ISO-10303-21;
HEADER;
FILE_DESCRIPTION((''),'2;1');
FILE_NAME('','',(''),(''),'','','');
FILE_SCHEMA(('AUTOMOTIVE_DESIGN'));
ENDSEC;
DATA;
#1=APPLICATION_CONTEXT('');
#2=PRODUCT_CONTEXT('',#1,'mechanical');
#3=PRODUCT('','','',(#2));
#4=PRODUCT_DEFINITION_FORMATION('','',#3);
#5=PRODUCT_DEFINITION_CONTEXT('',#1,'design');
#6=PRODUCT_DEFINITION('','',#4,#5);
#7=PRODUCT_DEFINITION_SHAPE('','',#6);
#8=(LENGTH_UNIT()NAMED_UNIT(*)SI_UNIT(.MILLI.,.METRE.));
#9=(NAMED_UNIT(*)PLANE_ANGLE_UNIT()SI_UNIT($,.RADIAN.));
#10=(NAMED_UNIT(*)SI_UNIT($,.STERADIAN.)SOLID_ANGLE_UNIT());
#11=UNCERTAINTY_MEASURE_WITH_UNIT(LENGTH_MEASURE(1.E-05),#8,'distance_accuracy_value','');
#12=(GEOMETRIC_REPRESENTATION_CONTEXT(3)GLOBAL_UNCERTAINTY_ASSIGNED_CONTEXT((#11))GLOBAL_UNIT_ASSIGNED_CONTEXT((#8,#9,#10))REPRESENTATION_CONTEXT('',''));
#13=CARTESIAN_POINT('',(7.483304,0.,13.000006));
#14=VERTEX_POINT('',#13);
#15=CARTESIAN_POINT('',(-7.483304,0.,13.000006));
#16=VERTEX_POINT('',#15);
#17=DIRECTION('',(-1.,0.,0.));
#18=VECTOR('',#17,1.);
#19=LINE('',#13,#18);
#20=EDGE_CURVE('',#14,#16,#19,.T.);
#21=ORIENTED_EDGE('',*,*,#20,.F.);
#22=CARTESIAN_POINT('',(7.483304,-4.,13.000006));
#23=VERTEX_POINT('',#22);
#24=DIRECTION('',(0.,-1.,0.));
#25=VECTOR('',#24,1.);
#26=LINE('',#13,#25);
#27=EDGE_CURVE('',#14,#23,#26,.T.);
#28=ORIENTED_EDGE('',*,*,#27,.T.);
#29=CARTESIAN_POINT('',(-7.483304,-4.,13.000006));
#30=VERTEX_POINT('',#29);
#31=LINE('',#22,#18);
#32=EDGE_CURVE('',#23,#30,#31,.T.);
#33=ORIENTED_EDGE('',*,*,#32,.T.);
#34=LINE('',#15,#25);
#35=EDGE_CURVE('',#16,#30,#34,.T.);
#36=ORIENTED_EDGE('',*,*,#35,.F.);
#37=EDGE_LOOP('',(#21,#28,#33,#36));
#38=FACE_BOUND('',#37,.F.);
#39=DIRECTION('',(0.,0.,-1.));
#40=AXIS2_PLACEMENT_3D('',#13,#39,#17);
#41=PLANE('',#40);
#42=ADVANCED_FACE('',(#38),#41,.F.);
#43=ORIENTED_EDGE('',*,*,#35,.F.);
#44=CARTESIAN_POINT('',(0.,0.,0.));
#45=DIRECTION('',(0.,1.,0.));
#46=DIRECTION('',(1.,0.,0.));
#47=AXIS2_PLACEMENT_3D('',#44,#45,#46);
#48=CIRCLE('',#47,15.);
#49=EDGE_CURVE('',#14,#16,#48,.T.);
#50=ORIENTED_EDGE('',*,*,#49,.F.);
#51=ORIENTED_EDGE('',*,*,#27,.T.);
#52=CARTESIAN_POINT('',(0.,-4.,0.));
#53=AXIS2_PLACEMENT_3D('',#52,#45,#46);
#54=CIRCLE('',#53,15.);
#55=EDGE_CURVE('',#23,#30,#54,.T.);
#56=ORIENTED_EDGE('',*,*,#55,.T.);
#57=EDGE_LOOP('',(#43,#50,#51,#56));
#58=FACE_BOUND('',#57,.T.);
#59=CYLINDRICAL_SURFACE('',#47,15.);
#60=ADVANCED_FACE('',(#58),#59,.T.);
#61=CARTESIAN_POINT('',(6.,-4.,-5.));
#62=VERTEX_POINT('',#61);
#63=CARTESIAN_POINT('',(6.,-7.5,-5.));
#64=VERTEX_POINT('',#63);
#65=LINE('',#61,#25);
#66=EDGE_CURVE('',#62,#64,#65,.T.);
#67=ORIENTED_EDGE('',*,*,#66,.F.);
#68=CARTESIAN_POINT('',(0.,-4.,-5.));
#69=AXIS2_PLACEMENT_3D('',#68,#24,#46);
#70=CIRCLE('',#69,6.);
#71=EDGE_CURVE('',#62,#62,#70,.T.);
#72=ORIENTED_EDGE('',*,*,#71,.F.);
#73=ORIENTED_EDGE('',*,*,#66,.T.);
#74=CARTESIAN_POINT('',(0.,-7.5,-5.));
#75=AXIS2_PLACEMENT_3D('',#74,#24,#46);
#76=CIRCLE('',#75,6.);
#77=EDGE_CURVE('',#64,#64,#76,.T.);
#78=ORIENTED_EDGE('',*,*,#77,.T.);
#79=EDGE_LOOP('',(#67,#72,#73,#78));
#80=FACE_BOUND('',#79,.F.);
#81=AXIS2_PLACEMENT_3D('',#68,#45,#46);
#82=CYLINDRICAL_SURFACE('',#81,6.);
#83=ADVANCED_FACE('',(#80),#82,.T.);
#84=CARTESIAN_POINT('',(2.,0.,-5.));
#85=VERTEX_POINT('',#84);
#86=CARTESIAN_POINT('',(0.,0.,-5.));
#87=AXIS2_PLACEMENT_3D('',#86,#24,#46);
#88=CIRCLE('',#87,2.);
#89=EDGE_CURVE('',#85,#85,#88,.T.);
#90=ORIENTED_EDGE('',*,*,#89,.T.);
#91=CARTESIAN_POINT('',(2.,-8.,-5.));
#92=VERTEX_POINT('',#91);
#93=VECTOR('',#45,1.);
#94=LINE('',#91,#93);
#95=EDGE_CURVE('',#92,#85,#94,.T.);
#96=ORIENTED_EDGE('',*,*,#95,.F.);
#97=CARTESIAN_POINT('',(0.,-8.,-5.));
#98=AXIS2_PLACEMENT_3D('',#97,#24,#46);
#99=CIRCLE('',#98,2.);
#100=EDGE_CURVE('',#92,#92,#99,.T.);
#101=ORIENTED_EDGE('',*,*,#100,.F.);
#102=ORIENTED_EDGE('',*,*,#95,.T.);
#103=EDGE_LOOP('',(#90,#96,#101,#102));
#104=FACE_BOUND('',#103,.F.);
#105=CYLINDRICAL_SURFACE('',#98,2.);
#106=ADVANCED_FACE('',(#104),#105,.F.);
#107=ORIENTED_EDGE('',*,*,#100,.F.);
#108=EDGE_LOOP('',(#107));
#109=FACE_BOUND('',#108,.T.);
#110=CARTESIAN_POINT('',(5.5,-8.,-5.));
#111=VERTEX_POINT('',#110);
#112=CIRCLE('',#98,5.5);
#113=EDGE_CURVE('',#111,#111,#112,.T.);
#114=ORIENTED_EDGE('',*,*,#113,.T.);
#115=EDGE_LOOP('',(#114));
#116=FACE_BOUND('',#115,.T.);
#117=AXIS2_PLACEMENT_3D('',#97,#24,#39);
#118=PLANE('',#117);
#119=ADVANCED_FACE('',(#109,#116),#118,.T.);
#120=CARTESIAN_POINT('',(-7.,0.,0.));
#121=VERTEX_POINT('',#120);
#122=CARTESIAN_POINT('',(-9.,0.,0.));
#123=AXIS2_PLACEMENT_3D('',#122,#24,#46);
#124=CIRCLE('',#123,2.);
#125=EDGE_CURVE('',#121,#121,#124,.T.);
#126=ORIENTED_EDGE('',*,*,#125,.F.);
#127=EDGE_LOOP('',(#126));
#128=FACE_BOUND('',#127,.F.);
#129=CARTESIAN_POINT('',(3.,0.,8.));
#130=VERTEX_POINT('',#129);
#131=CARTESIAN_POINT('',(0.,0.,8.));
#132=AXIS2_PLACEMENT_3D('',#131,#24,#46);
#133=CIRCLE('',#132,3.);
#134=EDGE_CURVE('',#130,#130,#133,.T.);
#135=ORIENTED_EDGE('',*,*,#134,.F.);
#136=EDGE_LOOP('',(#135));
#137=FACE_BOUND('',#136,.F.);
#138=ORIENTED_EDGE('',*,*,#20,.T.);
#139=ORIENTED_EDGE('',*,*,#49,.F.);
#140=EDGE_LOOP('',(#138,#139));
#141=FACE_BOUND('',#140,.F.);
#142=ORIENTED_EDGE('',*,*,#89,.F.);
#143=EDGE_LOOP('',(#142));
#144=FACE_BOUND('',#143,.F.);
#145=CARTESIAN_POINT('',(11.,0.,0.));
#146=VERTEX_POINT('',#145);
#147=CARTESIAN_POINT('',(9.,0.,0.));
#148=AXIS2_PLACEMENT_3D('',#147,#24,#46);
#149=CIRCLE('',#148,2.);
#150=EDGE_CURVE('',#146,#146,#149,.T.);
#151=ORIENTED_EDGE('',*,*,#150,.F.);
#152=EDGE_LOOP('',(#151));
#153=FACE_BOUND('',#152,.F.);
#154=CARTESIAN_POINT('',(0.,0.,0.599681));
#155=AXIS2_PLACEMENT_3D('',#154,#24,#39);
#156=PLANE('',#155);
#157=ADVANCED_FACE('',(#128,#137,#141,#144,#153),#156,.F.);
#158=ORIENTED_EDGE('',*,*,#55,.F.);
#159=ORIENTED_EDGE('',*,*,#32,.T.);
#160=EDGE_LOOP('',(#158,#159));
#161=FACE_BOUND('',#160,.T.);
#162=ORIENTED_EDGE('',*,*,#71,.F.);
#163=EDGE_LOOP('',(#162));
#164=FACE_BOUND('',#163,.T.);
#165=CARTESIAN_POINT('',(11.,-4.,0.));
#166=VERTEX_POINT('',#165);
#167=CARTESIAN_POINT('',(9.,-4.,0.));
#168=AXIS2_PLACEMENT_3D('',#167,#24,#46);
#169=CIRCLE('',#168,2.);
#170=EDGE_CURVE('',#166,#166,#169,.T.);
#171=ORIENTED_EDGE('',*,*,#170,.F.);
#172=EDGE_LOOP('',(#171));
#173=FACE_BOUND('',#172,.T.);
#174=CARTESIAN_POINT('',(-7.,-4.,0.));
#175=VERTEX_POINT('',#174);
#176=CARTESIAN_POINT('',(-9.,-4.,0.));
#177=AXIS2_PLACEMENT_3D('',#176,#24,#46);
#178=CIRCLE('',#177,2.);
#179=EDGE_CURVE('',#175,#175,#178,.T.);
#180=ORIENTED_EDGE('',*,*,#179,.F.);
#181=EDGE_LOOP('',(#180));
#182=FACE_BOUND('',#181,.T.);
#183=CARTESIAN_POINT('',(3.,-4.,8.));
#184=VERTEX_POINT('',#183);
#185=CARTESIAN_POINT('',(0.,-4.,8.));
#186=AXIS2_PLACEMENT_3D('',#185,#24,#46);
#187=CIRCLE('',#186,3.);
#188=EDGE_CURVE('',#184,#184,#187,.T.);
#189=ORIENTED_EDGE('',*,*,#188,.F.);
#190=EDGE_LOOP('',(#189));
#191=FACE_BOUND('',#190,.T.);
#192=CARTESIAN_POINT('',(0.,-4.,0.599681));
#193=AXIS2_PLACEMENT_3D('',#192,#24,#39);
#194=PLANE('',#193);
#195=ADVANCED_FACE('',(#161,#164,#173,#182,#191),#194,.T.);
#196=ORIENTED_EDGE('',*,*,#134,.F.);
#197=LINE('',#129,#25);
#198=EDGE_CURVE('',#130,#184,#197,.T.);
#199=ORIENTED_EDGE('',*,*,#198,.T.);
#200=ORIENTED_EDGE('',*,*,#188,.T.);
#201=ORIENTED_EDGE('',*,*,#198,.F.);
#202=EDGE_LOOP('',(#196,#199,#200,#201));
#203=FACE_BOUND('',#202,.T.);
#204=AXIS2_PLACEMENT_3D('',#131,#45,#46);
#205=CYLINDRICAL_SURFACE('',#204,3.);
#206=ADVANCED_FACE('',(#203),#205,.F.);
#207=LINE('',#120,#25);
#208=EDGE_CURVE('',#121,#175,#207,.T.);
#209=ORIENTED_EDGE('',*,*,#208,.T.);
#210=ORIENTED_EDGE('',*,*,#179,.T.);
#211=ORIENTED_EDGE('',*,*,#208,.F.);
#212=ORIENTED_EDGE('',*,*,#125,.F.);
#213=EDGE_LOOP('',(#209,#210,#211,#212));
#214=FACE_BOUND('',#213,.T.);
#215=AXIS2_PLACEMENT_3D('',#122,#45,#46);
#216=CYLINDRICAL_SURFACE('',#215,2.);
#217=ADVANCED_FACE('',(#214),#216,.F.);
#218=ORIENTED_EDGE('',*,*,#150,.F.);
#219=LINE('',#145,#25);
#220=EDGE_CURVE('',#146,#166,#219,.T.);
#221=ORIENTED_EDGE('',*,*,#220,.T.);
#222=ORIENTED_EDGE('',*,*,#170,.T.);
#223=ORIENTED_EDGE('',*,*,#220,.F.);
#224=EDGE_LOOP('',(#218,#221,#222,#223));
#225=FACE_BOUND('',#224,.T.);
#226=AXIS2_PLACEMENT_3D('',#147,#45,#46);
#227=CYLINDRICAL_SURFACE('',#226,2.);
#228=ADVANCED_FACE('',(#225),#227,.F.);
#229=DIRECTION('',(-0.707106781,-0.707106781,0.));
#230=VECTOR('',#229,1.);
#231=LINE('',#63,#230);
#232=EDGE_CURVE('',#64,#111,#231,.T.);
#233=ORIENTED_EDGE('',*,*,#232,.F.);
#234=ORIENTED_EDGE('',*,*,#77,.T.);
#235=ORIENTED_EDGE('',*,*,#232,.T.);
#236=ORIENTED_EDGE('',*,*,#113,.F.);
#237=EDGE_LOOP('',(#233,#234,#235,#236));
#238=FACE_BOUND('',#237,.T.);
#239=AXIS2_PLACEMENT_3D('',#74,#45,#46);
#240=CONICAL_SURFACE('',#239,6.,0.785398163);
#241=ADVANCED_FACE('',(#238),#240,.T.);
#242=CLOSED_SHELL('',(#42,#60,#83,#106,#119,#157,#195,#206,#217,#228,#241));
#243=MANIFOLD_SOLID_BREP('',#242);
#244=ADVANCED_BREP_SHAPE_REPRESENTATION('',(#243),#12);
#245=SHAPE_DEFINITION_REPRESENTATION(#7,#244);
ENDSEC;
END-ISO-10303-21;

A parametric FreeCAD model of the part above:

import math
import FreeCAD as App
import Part
import Sketcher

V = App.Vector


def edges_at(feature, points):
    """Names of the edges that pass closest to the given points."""
    edges = feature.Shape.Edges
    near = lambda p: min(range(len(edges)), key=lambda i: edges[i].distToShape(Part.Vertex(*p))[0])
    return sorted({f"Edge{near(p) + 1}" for p in points})

doc = App.newDocument("Part")
params = doc.addObject("Spreadsheet::Sheet", "Params")
for row, (alias, value) in enumerate([
    ("sketch1_diameter", "4 mm"),
    ("sketch1_diameter2", "6 mm"),
    ("sketch1_radius", "15 mm"),
    ("pad1_length", "4 mm"),
    ("sketch2_diameter", "12 mm"),
    ("pad2_length", "4 mm"),
    ("sketch3_diameter", "4 mm"),
    ("pocket1_length", "17.8884 mm"),
    ("chamfer_size", "0.5 mm"),
], start=1):
    params.set(f"A{row}", alias)
    params.set(f"B{row}", "=" + value)
    params.setAlias(f"B{row}", alias)

body = doc.addObject("PartDesign::Body", "Body")

# Sketch on XZ plane
sketch1 = doc.addObject("Sketcher::SketchObject", "Sketch")
body.addObject(sketch1)
sketch1.AttachmentSupport = (doc.XZ_Plane, [""])
sketch1.MapMode = "FlatFace"
sketch1.addGeometry([
    Part.ArcOfCircle(Part.Circle(V(0, 0, 0), V(0, 0, 1), 14.999993), math.radians(119.926386), math.radians(420.073614)),  # 0
    Part.LineSegment(V(7.4833, 13, 0), V(-7.4833, 13, 0)),  # 1
    Part.Circle(V(-9, 0, 0), V(0, 0, 1), 2),  # 2
    Part.Circle(V(9, 0, 0), V(0, 0, 1), 2),  # 3
    Part.Circle(V(0, 8, 0), V(0, 0, 1), 3),  # 4
], False)
sketch1.addConstraint([
    Sketcher.Constraint("Coincident", 0, 1, 1, 2),
    Sketcher.Constraint("Coincident", 1, 1, 0, 2),
    Sketcher.Constraint("Horizontal", 1),
    Sketcher.Constraint("Coincident", 0, 3, -1, 1),
    Sketcher.Constraint("Equal", 2, 3),
    Sketcher.Constraint("Symmetric", 2, 3, 3, 3, -1, 1),
    Sketcher.Constraint("PointOnObject", 2, 3, -1),
    Sketcher.Constraint("PointOnObject", 4, 3, -2),
    Sketcher.Constraint("Diameter", 2, 4.0),
    Sketcher.Constraint("Diameter", 4, 6.0),
    Sketcher.Constraint("Radius", 0, 15.0),
    Sketcher.Constraint("DistanceX", 2, 3, -1, 1, 9.0),
    Sketcher.Constraint("DistanceY", -1, 1, 4, 3, 8.0),
    Sketcher.Constraint("DistanceY", -1, 1, 0, 1, 13.0),
])
sketch1.setExpression("Constraints[8]", "Params.sketch1_diameter")
sketch1.setExpression("Constraints[9]", "Params.sketch1_diameter2")
sketch1.setExpression("Constraints[10]", "Params.sketch1_radius")
pad1 = doc.addObject("PartDesign::Pad", "Pad")
body.addObject(pad1)
pad1.Profile = sketch1
pad1.setExpression("Length", "Params.pad1_length")

# Sketch on XZ plane
sketch2 = doc.addObject("Sketcher::SketchObject", "Sketch001")
body.addObject(sketch2)
sketch2.AttachmentSupport = (doc.XZ_Plane, [""])
sketch2.MapMode = "FlatFace"
sketch2.AttachmentOffset = App.Placement(V(0, 0, 4), App.Rotation())
sketch2.addGeometry(Part.Circle(V(0, -5, 0), V(0, 0, 1), 6), False)
sketch2.addConstraint([
    Sketcher.Constraint("PointOnObject", 0, 3, -2),
    Sketcher.Constraint("Diameter", 0, 12.0),
    Sketcher.Constraint("DistanceY", 0, 3, -1, 1, 5.0),
])
sketch2.setExpression("Constraints[1]", "Params.sketch2_diameter")
pad2 = doc.addObject("PartDesign::Pad", "Pad001")
body.addObject(pad2)
pad2.Profile = sketch2
pad2.setExpression("Length", "Params.pad2_length")

# Sketch on XZ plane
sketch3 = doc.addObject("Sketcher::SketchObject", "Sketch002")
body.addObject(sketch3)
sketch3.AttachmentSupport = (doc.XZ_Plane, [""])
sketch3.MapMode = "FlatFace"
sketch3.AttachmentOffset = App.Placement(V(0, 0, 8), App.Rotation())
sketch3.addGeometry(Part.Circle(V(0, -5, 0), V(0, 0, 1), 2), False)
sketch3.addConstraint([
    Sketcher.Constraint("PointOnObject", 0, 3, -2),
    Sketcher.Constraint("Diameter", 0, 4.0),
    Sketcher.Constraint("DistanceY", 0, 3, -1, 1, 5.0),
])
sketch3.setExpression("Constraints[1]", "Params.sketch3_diameter")
pocket1 = doc.addObject("PartDesign::Pocket", "Pocket")
body.addObject(pocket1)
pocket1.Profile = sketch3
pocket1.setExpression("Length", "Params.pocket1_length")
doc.recompute()

chamfer = doc.addObject("PartDesign::Chamfer", "Chamfer")
body.addObject(chamfer)
chamfer.Base = (pocket1, edges_at(pocket1, [(-6, -8, -5)]))
chamfer.setExpression("Size", "Params.chamfer_size")

doc.recompute()
